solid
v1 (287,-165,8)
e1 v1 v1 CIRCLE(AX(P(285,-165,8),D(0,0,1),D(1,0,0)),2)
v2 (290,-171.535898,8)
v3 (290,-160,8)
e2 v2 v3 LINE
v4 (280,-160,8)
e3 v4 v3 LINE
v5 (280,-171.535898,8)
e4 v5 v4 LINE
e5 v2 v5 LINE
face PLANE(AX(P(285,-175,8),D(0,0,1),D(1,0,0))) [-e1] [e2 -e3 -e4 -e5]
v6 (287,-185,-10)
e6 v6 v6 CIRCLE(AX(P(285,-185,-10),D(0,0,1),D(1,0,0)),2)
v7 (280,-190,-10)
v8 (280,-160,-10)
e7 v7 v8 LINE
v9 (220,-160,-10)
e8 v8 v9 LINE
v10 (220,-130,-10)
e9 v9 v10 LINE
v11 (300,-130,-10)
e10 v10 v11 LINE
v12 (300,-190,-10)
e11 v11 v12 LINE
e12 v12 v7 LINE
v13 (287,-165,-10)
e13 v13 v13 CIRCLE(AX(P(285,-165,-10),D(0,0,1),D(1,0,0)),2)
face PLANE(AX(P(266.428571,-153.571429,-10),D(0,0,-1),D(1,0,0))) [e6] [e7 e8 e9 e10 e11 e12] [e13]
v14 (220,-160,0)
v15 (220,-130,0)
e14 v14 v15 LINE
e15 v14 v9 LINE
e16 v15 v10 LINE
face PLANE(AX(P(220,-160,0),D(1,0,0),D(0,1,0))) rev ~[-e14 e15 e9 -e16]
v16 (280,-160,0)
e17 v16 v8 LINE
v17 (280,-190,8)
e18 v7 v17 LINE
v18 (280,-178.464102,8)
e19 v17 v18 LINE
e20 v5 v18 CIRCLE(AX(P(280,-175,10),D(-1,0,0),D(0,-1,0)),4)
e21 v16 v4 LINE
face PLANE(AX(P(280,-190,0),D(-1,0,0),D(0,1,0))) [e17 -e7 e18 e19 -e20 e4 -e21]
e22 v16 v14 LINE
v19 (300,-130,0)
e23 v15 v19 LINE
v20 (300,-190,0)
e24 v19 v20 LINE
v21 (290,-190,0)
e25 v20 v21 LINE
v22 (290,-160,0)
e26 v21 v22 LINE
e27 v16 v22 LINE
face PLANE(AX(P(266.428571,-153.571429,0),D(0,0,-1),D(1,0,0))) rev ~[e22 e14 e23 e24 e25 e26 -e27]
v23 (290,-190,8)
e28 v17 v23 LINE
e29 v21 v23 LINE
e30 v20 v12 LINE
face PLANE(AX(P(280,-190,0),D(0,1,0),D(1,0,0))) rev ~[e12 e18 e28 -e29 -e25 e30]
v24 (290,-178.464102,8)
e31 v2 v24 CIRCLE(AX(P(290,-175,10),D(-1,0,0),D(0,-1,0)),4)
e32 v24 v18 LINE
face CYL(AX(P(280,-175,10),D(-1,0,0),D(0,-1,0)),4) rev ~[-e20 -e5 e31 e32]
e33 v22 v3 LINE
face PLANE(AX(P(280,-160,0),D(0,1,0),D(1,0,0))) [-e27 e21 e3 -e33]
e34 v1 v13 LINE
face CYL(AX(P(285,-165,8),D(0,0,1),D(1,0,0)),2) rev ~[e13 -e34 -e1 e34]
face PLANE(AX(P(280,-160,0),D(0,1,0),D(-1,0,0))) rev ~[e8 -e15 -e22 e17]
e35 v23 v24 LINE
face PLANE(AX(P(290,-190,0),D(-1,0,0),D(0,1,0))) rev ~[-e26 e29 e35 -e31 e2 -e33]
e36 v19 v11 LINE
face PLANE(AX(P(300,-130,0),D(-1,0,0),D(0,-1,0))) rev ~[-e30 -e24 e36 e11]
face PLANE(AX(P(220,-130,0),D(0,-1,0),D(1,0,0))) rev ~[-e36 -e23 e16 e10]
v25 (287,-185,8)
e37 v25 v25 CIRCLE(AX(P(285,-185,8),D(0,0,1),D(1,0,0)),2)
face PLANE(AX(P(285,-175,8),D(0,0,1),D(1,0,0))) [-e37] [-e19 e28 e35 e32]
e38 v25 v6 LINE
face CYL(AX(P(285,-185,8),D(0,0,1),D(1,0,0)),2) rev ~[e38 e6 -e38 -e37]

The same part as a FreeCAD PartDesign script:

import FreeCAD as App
import Part
import Sketcher

V = App.Vector
Q = App.Units.Quantity

doc = App.newDocument("Part")
params = doc.addObject("Spreadsheet::Sheet", "Params")
for row, (alias, value) in enumerate([
    ("sketch1_width", "60 mm"),
    ("sketch1_width2", "80 mm"),
    ("pad1_length", "10 mm"),
    ("sketch2_width", "10 mm"),
    ("sketch2_height", "30 mm"),
    ("pad2_length", "8 mm"),
    ("sketch3_diameter", "8 mm"),
    ("pocket1_length", "10 mm"),
    ("sketch4_diameter", "4 mm"),
    ("pocket2_length", "20 mm"),
    ("sketch5_diameter", "4 mm"),
    ("pocket3_length", "20 mm"),
], start=1):
    params.set(f"A{row}", alias)
    params.set(f"B{row}", "=" + value)
    params.setAlias(f"B{row}", alias)

body = doc.addObject("PartDesign::Body", "Body")

sketch1 = doc.addObject("Sketcher::SketchObject", "Sketch")
body.addObject(sketch1)
sketch1.AttachmentSupport = (doc.XY_Plane, [""])
sketch1.MapMode = "FlatFace"
sketch1.addGeometry([
    Part.LineSegment(V(280, -160, 0), V(220, -160, 0)),
    Part.LineSegment(V(220, -160, 0), V(220, -130, 0)),
    Part.LineSegment(V(220, -130, 0), V(300, -130, 0)),
    Part.LineSegment(V(300, -130, 0), V(300, -190, 0)),
    Part.LineSegment(V(300, -190, 0), V(280, -190, 0)),
    Part.LineSegment(V(280, -190, 0), V(280, -160, 0)),
], False)
sketch1.addConstraint([
    Sketcher.Constraint("Coincident", 0, 2, 1, 1),
    Sketcher.Constraint("Coincident", 1, 2, 2, 1),
    Sketcher.Constraint("Coincident", 2, 2, 3, 1),
    Sketcher.Constraint("Coincident", 3, 2, 4, 1),
    Sketcher.Constraint("Coincident", 4, 2, 5, 1),
    Sketcher.Constraint("Coincident", 5, 2, 0, 1),
    Sketcher.Constraint("Horizontal", 0),
    Sketcher.Constraint("Vertical", 1),
    Sketcher.Constraint("Horizontal", 2),
    Sketcher.Constraint("Vertical", 3),
    Sketcher.Constraint("Horizontal", 4),
    Sketcher.Constraint("Vertical", 5),
    Sketcher.Constraint("Equal", 0, 3),
    Sketcher.Constraint("Equal", 1, 5),
    Sketcher.Constraint("DistanceX", 0, 2, 0, 1, Q("60 mm")),
    Sketcher.Constraint("DistanceX", 2, 1, 2, 2, Q("80 mm")),
    Sketcher.Constraint("DistanceX", -1, 1, 0, 2, Q("220 mm")),
    Sketcher.Constraint("DistanceY", 0, 2, -1, 1, Q("160 mm")),
])
sketch1.setExpression("Constraints[14]", "Params.sketch1_width")
sketch1.setExpression("Constraints[15]", "Params.sketch1_width2")
pad1 = doc.addObject("PartDesign::Pad", "Pad")
body.addObject(pad1)
pad1.Profile = sketch1
pad1.setExpression("Length", "Params.pad1_length")
pad1.Reversed = True

sketch2 = doc.addObject("Sketcher::SketchObject", "Sketch001")
body.addObject(sketch2)
sketch2.AttachmentSupport = (doc.XY_Plane, [""])
sketch2.MapMode = "FlatFace"
sketch2.addGeometry([
    Part.LineSegment(V(280, -160, 0), V(280, -190, 0)),
    Part.LineSegment(V(280, -190, 0), V(290, -190, 0)),
    Part.LineSegment(V(290, -190, 0), V(290, -160, 0)),
    Part.LineSegment(V(290, -160, 0), V(280, -160, 0)),
], False)
sketch2.addConstraint([
    Sketcher.Constraint("Coincident", 0, 2, 1, 1),
    Sketcher.Constraint("Coincident", 1, 2, 2, 1),
    Sketcher.Constraint("Coincident", 2, 2, 3, 1),
    Sketcher.Constraint("Coincident", 3, 2, 0, 1),
    Sketcher.Constraint("Vertical", 0),
    Sketcher.Constraint("Horizontal", 1),
    Sketcher.Constraint("Vertical", 2),
    Sketcher.Constraint("Horizontal", 3),
    Sketcher.Constraint("DistanceX", 1, 1, 1, 2, Q("10 mm")),
    Sketcher.Constraint("DistanceY", 0, 2, 0, 1, Q("30 mm")),
    Sketcher.Constraint("DistanceX", -1, 1, 0, 2, Q("280 mm")),
    Sketcher.Constraint("DistanceY", 0, 2, -1, 1, Q("190 mm")),
])
sketch2.setExpression("Constraints[8]", "Params.sketch2_width")
sketch2.setExpression("Constraints[9]", "Params.sketch2_height")
pad2 = doc.addObject("PartDesign::Pad", "Pad001")
body.addObject(pad2)
pad2.Profile = sketch2
pad2.setExpression("Length", "Params.pad2_length")

sketch3 = doc.addObject("Sketcher::SketchObject", "Sketch002")
body.addObject(sketch3)
sketch3.AttachmentSupport = (doc.YZ_Plane, [""])
sketch3.MapMode = "FlatFace"
sketch3.AttachmentOffset = App.Placement(V(0, 0, 280), App.Rotation())
sketch3.addGeometry(Part.Circle(V(-175, 10, 0), V(0, 0, 1), 4), False)
sketch3.addConstraint([
    Sketcher.Constraint("Diameter", 0, Q("8 mm")),
    Sketcher.Constraint("DistanceX", 0, 3, -1, 1, Q("175 mm")),
    Sketcher.Constraint("DistanceY", -1, 1, 0, 3, Q("10 mm")),
])
sketch3.setExpression("Constraints[0]", "Params.sketch3_diameter")
pocket1 = doc.addObject("PartDesign::Pocket", "Pocket")
body.addObject(pocket1)
pocket1.Profile = sketch3
pocket1.setExpression("Length", "Params.pocket1_length")
pocket1.Reversed = True

sketch4 = doc.addObject("Sketcher::SketchObject", "Sketch003")
body.addObject(sketch4)
sketch4.AttachmentSupport = (doc.XY_Plane, [""])
sketch4.MapMode = "FlatFace"
sketch4.AttachmentOffset = App.Placement(V(0, 0, 8), App.Rotation())
sketch4.addGeometry(Part.Circle(V(285, -185, 0), V(0, 0, 1), 2), False)
sketch4.addConstraint([
    Sketcher.Constraint("Diameter", 0, Q("4 mm")),
    Sketcher.Constraint("DistanceX", -1, 1, 0, 3, Q("285 mm")),
    Sketcher.Constraint("DistanceY", 0, 3, -1, 1, Q("185 mm")),
])
sketch4.setExpression("Constraints[0]", "Params.sketch4_diameter")
pocket2 = doc.addObject("PartDesign::Pocket", "Pocket001")
body.addObject(pocket2)
pocket2.Profile = sketch4
pocket2.setExpression("Length", "Params.pocket2_length")

sketch5 = doc.addObject("Sketcher::SketchObject", "Sketch004")
body.addObject(sketch5)
sketch5.AttachmentSupport = (doc.XY_Plane, [""])
sketch5.MapMode = "FlatFace"
sketch5.AttachmentOffset = App.Placement(V(0, 0, 8), App.Rotation())
sketch5.addGeometry(Part.Circle(V(285, -165, 0), V(0, 0, 1), 2), False)
sketch5.addConstraint([
    Sketcher.Constraint("Diameter", 0, Q("4 mm")),
    Sketcher.Constraint("DistanceX", -1, 1, 0, 3, Q("285 mm")),
    Sketcher.Constraint("DistanceY", 0, 3, -1, 1, Q("165 mm")),
])
sketch5.setExpression("Constraints[0]", "Params.sketch5_diameter")
pocket3 = doc.addObject("PartDesign::Pocket", "Pocket002")
body.addObject(pocket3)
pocket3.Profile = sketch5
pocket3.setExpression("Length", "Params.pocket3_length")

doc.recompute()
